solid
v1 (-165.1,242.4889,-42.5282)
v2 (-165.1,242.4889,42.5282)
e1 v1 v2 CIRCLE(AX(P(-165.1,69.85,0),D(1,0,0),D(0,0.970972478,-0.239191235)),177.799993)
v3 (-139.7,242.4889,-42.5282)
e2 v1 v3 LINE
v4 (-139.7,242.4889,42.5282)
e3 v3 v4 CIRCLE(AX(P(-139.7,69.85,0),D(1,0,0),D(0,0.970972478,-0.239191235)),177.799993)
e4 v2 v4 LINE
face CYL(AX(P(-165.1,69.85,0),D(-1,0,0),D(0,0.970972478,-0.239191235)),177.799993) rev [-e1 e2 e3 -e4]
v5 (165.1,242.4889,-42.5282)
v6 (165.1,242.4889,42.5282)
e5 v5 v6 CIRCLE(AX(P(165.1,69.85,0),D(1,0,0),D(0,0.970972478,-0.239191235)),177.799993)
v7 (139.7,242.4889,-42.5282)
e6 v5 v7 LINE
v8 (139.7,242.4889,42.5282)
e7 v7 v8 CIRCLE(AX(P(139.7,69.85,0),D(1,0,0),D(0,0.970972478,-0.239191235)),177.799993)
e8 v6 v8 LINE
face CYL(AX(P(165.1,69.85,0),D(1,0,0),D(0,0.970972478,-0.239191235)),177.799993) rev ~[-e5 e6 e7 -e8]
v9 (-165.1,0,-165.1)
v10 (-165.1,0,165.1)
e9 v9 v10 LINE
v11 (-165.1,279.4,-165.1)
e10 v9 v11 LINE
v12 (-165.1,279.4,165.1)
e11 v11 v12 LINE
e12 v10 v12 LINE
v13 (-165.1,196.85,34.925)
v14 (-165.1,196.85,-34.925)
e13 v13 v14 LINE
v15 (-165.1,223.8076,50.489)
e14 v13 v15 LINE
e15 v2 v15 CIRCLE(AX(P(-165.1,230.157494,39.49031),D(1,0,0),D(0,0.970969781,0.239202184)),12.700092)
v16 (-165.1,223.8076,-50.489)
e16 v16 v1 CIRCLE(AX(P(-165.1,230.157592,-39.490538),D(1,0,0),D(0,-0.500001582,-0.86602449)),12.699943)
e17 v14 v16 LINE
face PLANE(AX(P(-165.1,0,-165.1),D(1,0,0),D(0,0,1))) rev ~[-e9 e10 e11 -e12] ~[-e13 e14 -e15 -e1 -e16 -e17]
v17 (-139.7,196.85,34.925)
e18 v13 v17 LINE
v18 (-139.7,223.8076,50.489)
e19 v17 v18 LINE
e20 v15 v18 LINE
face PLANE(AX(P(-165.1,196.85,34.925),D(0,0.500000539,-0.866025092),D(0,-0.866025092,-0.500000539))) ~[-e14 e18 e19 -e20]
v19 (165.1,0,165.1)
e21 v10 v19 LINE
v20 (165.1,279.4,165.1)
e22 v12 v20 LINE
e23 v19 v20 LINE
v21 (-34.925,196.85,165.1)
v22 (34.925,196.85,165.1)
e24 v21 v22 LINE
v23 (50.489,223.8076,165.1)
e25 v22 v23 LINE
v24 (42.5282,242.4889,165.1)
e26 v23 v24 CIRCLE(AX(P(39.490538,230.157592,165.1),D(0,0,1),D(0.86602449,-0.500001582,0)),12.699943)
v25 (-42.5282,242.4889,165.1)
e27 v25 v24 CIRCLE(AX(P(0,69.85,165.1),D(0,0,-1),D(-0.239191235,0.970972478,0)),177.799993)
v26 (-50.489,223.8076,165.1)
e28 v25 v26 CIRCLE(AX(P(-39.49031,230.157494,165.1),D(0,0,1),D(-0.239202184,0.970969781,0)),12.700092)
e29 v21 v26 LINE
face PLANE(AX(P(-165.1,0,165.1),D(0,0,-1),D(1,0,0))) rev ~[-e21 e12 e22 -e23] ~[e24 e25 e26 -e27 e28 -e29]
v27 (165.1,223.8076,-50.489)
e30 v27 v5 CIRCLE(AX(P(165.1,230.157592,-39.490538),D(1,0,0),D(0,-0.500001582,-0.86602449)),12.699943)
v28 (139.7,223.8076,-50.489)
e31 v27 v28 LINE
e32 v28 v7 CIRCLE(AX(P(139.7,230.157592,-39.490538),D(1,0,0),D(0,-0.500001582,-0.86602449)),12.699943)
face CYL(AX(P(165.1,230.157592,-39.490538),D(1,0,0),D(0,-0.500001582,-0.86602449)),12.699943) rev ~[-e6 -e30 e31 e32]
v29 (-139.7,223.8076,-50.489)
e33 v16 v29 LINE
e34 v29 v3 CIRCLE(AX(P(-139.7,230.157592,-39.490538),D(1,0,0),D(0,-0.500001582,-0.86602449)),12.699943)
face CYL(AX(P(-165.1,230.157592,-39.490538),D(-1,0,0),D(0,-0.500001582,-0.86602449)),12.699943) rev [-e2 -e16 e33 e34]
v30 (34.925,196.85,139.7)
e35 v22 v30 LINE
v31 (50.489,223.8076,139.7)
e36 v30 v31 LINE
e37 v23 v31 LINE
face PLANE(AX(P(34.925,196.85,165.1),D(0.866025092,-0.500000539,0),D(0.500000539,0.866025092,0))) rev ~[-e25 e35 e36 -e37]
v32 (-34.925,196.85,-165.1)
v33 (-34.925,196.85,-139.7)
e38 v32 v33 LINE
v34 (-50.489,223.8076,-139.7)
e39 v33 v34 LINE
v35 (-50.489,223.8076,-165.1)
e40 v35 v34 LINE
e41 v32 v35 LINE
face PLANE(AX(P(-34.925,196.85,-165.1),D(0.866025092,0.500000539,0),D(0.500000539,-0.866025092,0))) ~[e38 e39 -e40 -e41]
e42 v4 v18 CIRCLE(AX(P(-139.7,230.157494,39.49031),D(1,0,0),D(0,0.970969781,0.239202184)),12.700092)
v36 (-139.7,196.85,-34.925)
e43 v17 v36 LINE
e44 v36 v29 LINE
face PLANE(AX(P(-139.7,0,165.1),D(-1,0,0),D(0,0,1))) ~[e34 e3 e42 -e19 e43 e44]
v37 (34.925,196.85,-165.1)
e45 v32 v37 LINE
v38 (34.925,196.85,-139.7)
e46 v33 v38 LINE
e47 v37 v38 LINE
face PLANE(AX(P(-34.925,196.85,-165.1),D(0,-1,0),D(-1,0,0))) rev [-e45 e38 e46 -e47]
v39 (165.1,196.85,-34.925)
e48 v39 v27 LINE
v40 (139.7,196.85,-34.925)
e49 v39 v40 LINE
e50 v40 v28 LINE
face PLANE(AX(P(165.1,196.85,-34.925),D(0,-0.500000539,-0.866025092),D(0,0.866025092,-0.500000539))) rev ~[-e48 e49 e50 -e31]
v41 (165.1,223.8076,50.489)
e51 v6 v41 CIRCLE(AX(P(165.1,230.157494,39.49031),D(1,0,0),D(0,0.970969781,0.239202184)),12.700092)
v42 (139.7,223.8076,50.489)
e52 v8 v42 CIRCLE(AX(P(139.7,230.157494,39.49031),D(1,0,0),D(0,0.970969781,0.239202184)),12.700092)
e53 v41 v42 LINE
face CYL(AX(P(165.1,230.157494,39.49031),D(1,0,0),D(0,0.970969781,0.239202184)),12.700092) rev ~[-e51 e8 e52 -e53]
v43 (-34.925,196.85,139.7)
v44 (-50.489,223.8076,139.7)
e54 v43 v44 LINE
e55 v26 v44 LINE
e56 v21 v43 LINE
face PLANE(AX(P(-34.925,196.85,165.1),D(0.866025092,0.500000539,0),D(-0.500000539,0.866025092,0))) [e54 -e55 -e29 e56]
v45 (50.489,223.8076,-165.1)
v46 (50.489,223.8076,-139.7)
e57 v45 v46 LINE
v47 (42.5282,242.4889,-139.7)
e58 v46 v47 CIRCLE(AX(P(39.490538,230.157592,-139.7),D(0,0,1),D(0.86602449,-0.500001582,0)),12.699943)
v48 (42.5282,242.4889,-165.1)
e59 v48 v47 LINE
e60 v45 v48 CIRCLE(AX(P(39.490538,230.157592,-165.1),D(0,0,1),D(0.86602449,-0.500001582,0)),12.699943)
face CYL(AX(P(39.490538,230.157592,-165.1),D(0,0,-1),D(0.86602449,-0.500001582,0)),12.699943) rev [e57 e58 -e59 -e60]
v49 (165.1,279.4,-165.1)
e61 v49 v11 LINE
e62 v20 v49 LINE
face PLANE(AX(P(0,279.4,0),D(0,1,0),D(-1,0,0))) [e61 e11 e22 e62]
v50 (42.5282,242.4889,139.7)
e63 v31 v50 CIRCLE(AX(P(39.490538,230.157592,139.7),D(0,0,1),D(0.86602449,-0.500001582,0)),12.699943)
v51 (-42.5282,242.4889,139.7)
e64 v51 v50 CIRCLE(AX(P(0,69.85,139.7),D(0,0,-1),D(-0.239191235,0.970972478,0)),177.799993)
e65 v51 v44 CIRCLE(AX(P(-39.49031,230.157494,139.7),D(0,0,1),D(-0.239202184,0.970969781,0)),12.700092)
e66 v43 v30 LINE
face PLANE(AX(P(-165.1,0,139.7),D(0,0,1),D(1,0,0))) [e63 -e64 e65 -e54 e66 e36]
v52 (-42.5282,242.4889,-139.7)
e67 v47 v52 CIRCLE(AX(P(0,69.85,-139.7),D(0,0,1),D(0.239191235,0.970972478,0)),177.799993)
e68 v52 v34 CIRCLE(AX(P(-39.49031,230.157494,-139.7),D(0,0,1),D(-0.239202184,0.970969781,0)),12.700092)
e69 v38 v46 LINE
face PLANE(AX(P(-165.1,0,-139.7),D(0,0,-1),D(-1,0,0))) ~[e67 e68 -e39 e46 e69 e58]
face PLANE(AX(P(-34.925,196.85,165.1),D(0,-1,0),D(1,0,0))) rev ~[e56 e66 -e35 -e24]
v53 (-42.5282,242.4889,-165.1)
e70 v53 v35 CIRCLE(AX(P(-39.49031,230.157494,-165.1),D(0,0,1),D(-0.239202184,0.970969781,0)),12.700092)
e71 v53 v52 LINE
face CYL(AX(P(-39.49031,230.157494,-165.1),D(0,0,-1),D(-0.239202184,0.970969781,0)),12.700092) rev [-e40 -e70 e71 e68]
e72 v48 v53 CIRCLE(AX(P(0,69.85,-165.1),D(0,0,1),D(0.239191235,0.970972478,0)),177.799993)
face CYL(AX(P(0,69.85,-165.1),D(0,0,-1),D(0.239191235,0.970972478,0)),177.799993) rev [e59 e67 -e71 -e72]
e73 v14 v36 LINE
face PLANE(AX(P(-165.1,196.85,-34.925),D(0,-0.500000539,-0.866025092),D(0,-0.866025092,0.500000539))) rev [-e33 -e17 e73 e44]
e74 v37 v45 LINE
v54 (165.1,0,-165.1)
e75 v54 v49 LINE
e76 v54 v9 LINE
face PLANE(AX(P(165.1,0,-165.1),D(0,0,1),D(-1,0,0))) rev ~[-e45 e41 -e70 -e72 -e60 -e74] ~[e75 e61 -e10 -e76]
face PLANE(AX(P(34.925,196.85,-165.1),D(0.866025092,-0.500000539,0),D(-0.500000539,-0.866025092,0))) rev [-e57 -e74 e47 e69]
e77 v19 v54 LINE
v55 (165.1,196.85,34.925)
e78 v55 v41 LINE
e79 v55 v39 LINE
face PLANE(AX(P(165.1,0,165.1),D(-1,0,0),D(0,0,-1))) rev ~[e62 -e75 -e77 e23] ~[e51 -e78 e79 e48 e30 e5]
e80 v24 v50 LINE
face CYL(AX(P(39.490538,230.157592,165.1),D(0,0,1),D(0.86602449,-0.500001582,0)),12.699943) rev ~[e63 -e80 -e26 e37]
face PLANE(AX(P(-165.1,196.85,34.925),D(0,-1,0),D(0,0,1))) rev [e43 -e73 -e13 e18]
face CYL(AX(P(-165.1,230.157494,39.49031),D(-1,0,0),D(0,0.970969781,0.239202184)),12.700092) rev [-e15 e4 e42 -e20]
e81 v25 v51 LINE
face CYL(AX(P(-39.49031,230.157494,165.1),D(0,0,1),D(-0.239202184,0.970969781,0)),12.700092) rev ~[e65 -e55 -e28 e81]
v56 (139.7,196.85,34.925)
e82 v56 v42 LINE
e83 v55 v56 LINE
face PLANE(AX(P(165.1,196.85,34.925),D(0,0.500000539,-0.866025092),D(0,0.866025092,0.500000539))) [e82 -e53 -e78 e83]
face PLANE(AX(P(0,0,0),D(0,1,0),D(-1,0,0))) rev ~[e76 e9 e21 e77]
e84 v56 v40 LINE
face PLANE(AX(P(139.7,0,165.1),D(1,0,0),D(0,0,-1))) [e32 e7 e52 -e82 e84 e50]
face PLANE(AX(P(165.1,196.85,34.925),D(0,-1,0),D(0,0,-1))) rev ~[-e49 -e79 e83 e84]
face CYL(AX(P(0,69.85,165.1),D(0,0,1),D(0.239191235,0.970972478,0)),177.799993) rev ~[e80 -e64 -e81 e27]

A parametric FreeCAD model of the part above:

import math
import FreeCAD as App
import Part
import Sketcher

V = App.Vector
Q = App.Units.Quantity


def add_polygon(sketch, points):
    """Adds a closed chain of lines whose ends are joined by coincident constraints."""
    first, n = sketch.GeometryCount, len(points)
    for a, b in zip(points, points[1:] + points[:1]):
        sketch.addGeometry(Part.LineSegment(App.Vector(*a, 0), App.Vector(*b, 0)), False)
    for i in range(n):
        sketch.addConstraint(Sketcher.Constraint("Coincident", first + i, 2, first + (i + 1) % n, 1))

doc = App.newDocument("Part")
body = doc.addObject("PartDesign::Body", "Body")

# Sketch on XZ plane
sketch1 = body.newObject("Sketcher::SketchObject", "Sketch")
sketch1.AttachmentSupport = (doc.getObject("XZ_Plane"), [""])
sketch1.MapMode = "FlatFace"
add_polygon(sketch1, [(-165.1, -165.1), (-165.1, 165.1), (165.1, 165.1), (165.1, -165.1)])  # lines 0-3
sketch1.addConstraint(Sketcher.Constraint("Vertical", 0))
sketch1.addConstraint(Sketcher.Constraint("Horizontal", 1))
sketch1.addConstraint(Sketcher.Constraint("Vertical", 2))
sketch1.addConstraint(Sketcher.Constraint("Horizontal", 3))
sketch1.addConstraint(Sketcher.Constraint("Symmetric", 0, 2, 2, 2, -1, 1))
sketch1.addConstraint(Sketcher.Constraint("Equal", 3, 0))
sketch1.addConstraint(Sketcher.Constraint("DistanceX", 1, 1, 1, 2, Q("13 in")))
pad1 = body.newObject("PartDesign::Pad", "Pad")
pad1.Profile = sketch1
pad1.Length = Q("11 in")
pad1.Reversed = True

# Sketch on XY plane
sketch2 = body.newObject("Sketcher::SketchObject", "Sketch001")
sketch2.AttachmentSupport = (doc.getObject("XY_Plane"), [""])
sketch2.MapMode = "FlatFace"
sketch2.AttachmentOffset = App.Placement(V(0, 0, 6.5 * 25.4), App.Rotation())
sketch2.addGeometry(Part.ArcOfCircle(Part.Circle(V(39.4904, 230.1576, 0), V(0, 0, 1), 12.700067), math.radians(-29.999825), math.radians(76.160822)), False)
sketch2.addGeometry(Part.ArcOfCircle(Part.Circle(V(0, 69.85, 0), V(0, 0, 1), 177.799993), math.radians(76.161189), math.radians(103.838811)), False)
sketch2.addGeometry(Part.ArcOfCircle(Part.Circle(V(-39.4904, 230.1576, 0), V(0, 0, 1), 12.699968), math.radians(103.839178), math.radians(209.999825)), False)
sketch2.addGeometry(Part.LineSegment(V(-50.489, 223.8076, 0), V(-34.925, 196.85, 0)), False)
sketch2.addGeometry(Part.LineSegment(V(-34.925, 196.85, 0), V(34.925, 196.85, 0)), False)
sketch2.addGeometry(Part.LineSegment(V(34.925, 196.85, 0), V(50.489, 223.8076, 0)), False)
sketch2.addConstraint(Sketcher.Constraint("Tangent", 0, 2, 1, 1))
sketch2.addConstraint(Sketcher.Constraint("Tangent", 1, 2, 2, 1))
sketch2.addConstraint(Sketcher.Constraint("Tangent", 2, 2, 3, 1))
sketch2.addConstraint(Sketcher.Constraint("Coincident", 3, 2, 4, 1))
sketch2.addConstraint(Sketcher.Constraint("Coincident", 4, 2, 5, 1))
sketch2.addConstraint(Sketcher.Constraint("Tangent", 5, 2, 0, 1))
sketch2.addConstraint(Sketcher.Constraint("Horizontal", 4))
sketch2.addConstraint(Sketcher.Constraint("Equal", 0, 2))
sketch2.addConstraint(Sketcher.Constraint("Symmetric", 0, 3, 2, 3, -2))
sketch2.addConstraint(Sketcher.Constraint("Horizontal", 2, 2, 5, 2))
sketch2.addConstraint(Sketcher.Constraint("Radius", 1, Q("7 in")))
sketch2.addConstraint(Sketcher.Constraint("Radius", 0, Q("0.5 in")))
sketch2.addConstraint(Sketcher.Constraint("DistanceX", 4, 1, 4, 2, Q("2.75 in")))
sketch2.addConstraint(Sketcher.Constraint("DistanceY", -1, 1, 1, 3, Q("2.75 in")))
sketch2.addConstraint(Sketcher.Constraint("Angle", 3, Q("-60 deg")))
sketch2.addConstraint(Sketcher.Constraint("DistanceY", -1, 1, 3, 2, Q("7.75 in")))
pocket1 = body.newObject("PartDesign::Pocket", "Pocket")
pocket1.Profile = sketch2
pocket1.Length = Q("1 in")

# Sketch on YZ plane
sketch3 = body.newObject("Sketcher::SketchObject", "Sketch002")
sketch3.AttachmentSupport = (doc.getObject("YZ_Plane"), [""])
sketch3.MapMode = "FlatFace"
sketch3.AttachmentOffset = App.Placement(V(0, 0, 6.5 * 25.4), App.Rotation())
sketch3.addGeometry(Part.ArcOfCircle(Part.Circle(V(230.1576, -39.4904, 0), V(0, 0, 1), 12.700067), math.radians(-119.999825), math.radians(-13.839178)), False)
sketch3.addGeometry(Part.ArcOfCircle(Part.Circle(V(69.85, 0, 0), V(0, 0, 1), 177.799993), math.radians(-13.838811), math.radians(13.838811)), False)
sketch3.addGeometry(Part.ArcOfCircle(Part.Circle(V(230.1576, 39.4904, 0), V(0, 0, 1), 12.699968), math.radians(13.839178), math.radians(119.999825)), False)
sketch3.addGeometry(Part.LineSegment(V(223.8076, 50.489, 0), V(196.85, 34.925, 0)), False)
sketch3.addGeometry(Part.LineSegment(V(196.85, 34.925, 0), V(196.85, -34.925, 0)), False)
sketch3.addGeometry(Part.LineSegment(V(196.85, -34.925, 0), V(223.8076, -50.489, 0)), False)
sketch3.addConstraint(Sketcher.Constraint("Tangent", 0, 2, 1, 1))
sketch3.addConstraint(Sketcher.Constraint("Tangent", 1, 2, 2, 1))
sketch3.addConstraint(Sketcher.Constraint("Tangent", 2, 2, 3, 1))
sketch3.addConstraint(Sketcher.Constraint("Coincident", 3, 2, 4, 1))
sketch3.addConstraint(Sketcher.Constraint("Coincident", 4, 2, 5, 1))
sketch3.addConstraint(Sketcher.Constraint("Tangent", 5, 2, 0, 1))
sketch3.addConstraint(Sketcher.Constraint("Vertical", 4))
sketch3.addConstraint(Sketcher.Constraint("Equal", 0, 2))
sketch3.addConstraint(Sketcher.Constraint("Symmetric", 0, 3, 2, 3, -1))
sketch3.addConstraint(Sketcher.Constraint("Vertical", 2, 2, 5, 2))
sketch3.addConstraint(Sketcher.Constraint("Radius", 1, Q("7 in")))
sketch3.addConstraint(Sketcher.Constraint("Radius", 0, Q("0.5 in")))
sketch3.addConstraint(Sketcher.Constraint("DistanceY", 4, 2, 4, 1, Q("2.75 in")))
sketch3.addConstraint(Sketcher.Constraint("DistanceX", -1, 1, 1, 3, Q("2.75 in")))
sketch3.addConstraint(Sketcher.Constraint("Angle", 3, Q("-150 deg")))
sketch3.addConstraint(Sketcher.Constraint("DistanceX", -1, 1, 3, 2, Q("7.75 in")))
pocket2 = body.newObject("PartDesign::Pocket", "Pocket001")
pocket2.Profile = sketch3
pocket2.Length = Q("1 in")
doc.recompute()

mirrored = body.newObject("PartDesign::Mirrored", "Mirrored")
mirrored.Originals = [pocket1]
mirrored.MirrorPlane = (doc.getObject("XY_Plane"), [""])
body.Tip = mirrored
doc.recompute()

mirrored2 = body.newObject("PartDesign::Mirrored", "Mirrored001")
mirrored2.Originals = [pocket2]
mirrored2.MirrorPlane = (doc.getObject("YZ_Plane"), [""])
body.Tip = mirrored2

doc.recompute()
